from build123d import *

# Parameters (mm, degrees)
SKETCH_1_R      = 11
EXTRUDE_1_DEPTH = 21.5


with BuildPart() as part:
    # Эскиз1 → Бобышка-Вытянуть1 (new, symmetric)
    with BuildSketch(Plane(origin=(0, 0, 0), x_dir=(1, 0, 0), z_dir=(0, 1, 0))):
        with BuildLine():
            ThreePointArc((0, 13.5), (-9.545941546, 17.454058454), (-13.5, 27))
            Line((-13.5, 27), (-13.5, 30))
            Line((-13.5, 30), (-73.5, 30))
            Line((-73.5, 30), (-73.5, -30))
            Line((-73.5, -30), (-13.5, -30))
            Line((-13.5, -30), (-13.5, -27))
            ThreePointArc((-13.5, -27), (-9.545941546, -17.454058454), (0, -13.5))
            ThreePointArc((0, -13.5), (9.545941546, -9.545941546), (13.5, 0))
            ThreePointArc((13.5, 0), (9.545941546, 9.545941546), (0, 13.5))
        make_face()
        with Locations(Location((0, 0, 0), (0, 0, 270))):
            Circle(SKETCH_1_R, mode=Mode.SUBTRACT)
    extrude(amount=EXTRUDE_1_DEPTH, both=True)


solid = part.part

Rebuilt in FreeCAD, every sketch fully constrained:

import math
import FreeCAD as App
import Part
import Sketcher

doc = App.newDocument("Part")
body = doc.addObject("PartDesign::Body", "Body")

# Sketch on XZ plane
sketch1 = body.newObject("Sketcher::SketchObject", "Sketch")
sketch1.AttachmentSupport = (doc.getObject("XZ_Plane"), [""])
sketch1.MapMode = "FlatFace"
sketch1.addGeometry([
    Part.ArcOfCircle(Part.Circle(App.Vector(0, -27, 0), App.Vector(0, 0, 1), 13.5), math.radians(90), math.radians(180)),  # 0
    Part.LineSegment(App.Vector(-13.5, -27, 0), App.Vector(-13.5, -30, 0)),  # 1
    Part.LineSegment(App.Vector(-13.5, -30, 0), App.Vector(-73.5, -30, 0)),  # 2
    Part.LineSegment(App.Vector(-73.5, -30, 0), App.Vector(-73.5, 30, 0)),  # 3
    Part.LineSegment(App.Vector(-73.5, 30, 0), App.Vector(-13.5, 30, 0)),  # 4
    Part.LineSegment(App.Vector(-13.5, 30, 0), App.Vector(-13.5, 27, 0)),  # 5
    Part.ArcOfCircle(Part.Circle(App.Vector(0, 27, 0), App.Vector(0, 0, 1), 13.5), math.radians(180), math.radians(270)),  # 6
    Part.ArcOfCircle(Part.Circle(App.Vector(0, 0, 0), App.Vector(0, 0, 1), 13.5), math.radians(0), math.radians(90)),  # 7
    Part.ArcOfCircle(Part.Circle(App.Vector(0, 0, 0), App.Vector(0, 0, 1), 13.5), math.radians(-90), math.radians(0)),  # 8
    Part.Circle(App.Vector(0, 0, 0), App.Vector(0, 0, 1), 11),  # 9
], False)
sketch1.addConstraint([
    Sketcher.Constraint("Tangent", 0, 2, 1, 1),
    Sketcher.Constraint("Coincident", 1, 2, 2, 1),
    Sketcher.Constraint("Coincident", 2, 2, 3, 1),
    Sketcher.Constraint("Coincident", 3, 2, 4, 1),
    Sketcher.Constraint("Coincident", 4, 2, 5, 1),
    Sketcher.Constraint("Tangent", 5, 2, 6, 1),
    Sketcher.Constraint("Tangent", 6, 2, 7, 2),
    Sketcher.Constraint("Tangent", 7, 1, 8, 2),
    Sketcher.Constraint("Tangent", 8, 1, 0, 1),
    Sketcher.Constraint("Vertical", 1),
    Sketcher.Constraint("Horizontal", 2),
    Sketcher.Constraint("Vertical", 3),
    Sketcher.Constraint("Horizontal", 4),
    Sketcher.Constraint("Vertical", 5),
    Sketcher.Constraint("Coincident", 7, 3, -1, 1),
    Sketcher.Constraint("Coincident", 9, 3, -1, 1),
    Sketcher.Constraint("Equal", 0, 6),
    Sketcher.Constraint("Equal", 6, 7),
    Sketcher.Constraint("Equal", 7, 8),
    Sketcher.Constraint("Symmetric", 1, 2, 4, 2, -1),
    Sketcher.Constraint("PointOnObject", 0, 3, -2),
    Sketcher.Constraint("PointOnObject", 7, 1, -1),
    Sketcher.Constraint("Equal", 4, 3),
    Sketcher.Constraint("Diameter", 9, 22.0),
    Sketcher.Constraint("Radius", 0, 13.5),
    Sketcher.Constraint("DistanceX", 2, 2, 2, 1, 60.0),
])
pad1 = body.newObject("PartDesign::Pad", "Pad")
pad1.Profile = sketch1
pad1.Length = 43
pad1.Midplane = True

doc.recompute()
